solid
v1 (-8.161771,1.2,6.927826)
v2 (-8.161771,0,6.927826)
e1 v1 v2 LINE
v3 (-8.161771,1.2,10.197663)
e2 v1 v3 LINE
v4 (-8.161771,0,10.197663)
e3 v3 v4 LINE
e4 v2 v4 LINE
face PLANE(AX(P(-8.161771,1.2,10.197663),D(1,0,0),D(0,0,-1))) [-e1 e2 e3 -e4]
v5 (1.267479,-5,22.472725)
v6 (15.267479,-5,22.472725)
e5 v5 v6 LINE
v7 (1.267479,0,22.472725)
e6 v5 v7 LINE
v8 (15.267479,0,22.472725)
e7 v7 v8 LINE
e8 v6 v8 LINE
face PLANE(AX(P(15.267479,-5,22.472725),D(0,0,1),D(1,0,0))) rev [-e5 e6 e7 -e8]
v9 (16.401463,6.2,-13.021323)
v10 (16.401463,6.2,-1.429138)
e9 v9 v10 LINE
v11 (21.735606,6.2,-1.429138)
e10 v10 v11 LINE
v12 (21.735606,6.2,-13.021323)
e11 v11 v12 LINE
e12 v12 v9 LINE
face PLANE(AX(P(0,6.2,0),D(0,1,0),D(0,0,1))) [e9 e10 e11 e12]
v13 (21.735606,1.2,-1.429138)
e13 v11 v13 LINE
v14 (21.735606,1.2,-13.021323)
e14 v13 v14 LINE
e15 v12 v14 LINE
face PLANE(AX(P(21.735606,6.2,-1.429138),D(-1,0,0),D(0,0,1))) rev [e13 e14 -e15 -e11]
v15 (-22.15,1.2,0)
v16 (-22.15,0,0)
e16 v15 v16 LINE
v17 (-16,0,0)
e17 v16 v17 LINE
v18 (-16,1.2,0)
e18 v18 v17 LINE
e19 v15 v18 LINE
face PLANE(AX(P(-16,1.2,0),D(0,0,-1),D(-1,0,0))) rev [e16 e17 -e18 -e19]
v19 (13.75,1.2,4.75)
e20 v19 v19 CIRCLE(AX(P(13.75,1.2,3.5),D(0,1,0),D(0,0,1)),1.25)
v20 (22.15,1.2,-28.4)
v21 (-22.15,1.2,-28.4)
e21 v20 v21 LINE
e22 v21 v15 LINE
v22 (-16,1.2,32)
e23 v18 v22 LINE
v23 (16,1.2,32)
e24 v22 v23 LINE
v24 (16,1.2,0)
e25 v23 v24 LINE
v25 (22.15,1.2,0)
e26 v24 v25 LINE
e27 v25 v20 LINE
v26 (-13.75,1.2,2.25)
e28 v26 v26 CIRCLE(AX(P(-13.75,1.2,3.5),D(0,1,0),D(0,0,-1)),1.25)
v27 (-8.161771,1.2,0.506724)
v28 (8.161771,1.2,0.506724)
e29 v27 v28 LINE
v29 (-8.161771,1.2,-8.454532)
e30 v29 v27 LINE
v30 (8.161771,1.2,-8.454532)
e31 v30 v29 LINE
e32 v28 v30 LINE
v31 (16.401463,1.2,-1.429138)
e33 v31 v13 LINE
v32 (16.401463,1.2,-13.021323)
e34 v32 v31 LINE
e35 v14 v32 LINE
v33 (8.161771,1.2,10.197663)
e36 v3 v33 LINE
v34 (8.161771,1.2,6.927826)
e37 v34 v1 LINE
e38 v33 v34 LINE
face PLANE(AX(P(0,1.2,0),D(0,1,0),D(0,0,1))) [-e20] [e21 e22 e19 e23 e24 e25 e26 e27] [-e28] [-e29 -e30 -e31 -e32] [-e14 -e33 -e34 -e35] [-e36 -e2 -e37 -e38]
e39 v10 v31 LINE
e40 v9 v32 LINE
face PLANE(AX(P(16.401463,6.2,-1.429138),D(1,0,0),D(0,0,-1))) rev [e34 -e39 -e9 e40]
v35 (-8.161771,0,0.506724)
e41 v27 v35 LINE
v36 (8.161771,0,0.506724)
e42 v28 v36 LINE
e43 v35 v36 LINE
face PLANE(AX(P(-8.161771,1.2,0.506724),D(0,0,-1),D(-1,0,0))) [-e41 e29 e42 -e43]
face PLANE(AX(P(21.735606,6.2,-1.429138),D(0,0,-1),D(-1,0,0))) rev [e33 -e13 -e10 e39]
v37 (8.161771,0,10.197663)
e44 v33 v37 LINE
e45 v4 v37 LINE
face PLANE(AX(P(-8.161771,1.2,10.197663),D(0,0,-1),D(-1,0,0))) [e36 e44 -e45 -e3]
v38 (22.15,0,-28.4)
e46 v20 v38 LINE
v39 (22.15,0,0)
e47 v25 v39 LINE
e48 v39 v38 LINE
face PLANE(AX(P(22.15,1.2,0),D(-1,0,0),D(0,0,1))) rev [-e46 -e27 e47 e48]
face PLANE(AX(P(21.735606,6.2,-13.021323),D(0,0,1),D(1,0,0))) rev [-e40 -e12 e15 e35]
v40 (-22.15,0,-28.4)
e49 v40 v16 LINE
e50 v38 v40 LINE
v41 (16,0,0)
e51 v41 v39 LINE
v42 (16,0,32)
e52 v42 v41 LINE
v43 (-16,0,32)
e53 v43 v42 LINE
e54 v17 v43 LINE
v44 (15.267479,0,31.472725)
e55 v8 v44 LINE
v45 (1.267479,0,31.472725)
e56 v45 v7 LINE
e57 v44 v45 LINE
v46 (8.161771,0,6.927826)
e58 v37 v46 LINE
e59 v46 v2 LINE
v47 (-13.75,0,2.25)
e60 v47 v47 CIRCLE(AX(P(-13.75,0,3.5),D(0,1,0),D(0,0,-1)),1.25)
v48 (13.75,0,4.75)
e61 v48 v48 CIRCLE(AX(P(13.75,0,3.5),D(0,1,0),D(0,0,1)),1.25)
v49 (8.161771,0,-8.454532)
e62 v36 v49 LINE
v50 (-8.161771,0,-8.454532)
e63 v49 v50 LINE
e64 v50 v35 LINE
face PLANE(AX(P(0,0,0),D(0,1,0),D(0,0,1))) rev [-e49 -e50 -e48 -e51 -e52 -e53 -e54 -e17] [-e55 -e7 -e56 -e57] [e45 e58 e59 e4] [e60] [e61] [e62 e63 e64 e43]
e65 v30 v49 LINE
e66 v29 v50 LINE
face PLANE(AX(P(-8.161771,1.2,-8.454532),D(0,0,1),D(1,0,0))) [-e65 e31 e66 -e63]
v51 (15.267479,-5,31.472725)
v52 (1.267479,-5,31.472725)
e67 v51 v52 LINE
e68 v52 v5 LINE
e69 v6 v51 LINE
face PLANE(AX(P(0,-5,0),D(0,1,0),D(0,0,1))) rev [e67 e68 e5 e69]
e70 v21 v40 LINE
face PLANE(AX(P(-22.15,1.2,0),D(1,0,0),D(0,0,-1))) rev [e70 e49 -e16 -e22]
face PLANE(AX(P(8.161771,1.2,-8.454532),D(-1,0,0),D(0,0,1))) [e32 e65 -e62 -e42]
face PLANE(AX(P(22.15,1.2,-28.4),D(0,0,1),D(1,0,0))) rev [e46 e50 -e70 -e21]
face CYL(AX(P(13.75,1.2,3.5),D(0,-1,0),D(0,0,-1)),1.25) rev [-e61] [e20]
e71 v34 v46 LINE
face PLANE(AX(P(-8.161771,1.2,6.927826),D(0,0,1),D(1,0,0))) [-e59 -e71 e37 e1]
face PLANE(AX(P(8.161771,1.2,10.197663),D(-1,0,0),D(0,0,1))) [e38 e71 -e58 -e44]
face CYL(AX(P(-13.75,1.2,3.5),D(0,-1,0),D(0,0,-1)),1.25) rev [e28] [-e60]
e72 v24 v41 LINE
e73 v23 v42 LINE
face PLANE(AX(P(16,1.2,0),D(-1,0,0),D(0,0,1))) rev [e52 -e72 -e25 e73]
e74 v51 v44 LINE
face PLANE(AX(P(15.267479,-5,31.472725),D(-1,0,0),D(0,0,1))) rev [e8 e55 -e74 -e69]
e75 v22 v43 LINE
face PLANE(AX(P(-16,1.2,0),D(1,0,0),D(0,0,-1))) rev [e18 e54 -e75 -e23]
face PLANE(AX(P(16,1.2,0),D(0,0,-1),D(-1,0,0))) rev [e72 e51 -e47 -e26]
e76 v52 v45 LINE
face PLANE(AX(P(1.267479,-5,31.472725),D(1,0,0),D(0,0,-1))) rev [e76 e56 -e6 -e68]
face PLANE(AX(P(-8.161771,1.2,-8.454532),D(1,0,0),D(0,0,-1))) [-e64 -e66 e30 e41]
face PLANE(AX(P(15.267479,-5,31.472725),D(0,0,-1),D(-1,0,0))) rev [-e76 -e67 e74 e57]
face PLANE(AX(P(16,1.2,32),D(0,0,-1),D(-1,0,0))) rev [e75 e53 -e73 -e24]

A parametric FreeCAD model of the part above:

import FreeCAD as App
import Part
import Sketcher
Q = App.Units.Quantity

doc = App.newDocument("Part")
params = doc.addObject("Spreadsheet::Sheet", "Params")
for row, (alias, value) in enumerate([
    ("sketch1_diameter", "2.5 mm"),
    ("sketch1_width", "32 mm"),
    ("sketch1_width2", "44.3 mm"),
    ("sketch1_height", "28.4 mm"),
    ("pad1_length", "1.2 mm"),
    ("pad2_length", "5 mm"),
    ("sketch3_width", "14 mm"),
    ("sketch3_height", "9 mm"),
    ("pad3_length", "5 mm"),
], start=1):
    params.set(f"A{row}", alias)
    params.set(f"B{row}", "=" + value)
    params.setAlias(f"B{row}", alias)

body = doc.addObject("PartDesign::Body", "Body")

# Sketch on XZ plane
sketch1 = body.newObject("Sketcher::SketchObject", "Sketch")
sketch1.AttachmentSupport = (doc.getObject("XZ_Plane"), [""])
sketch1.MapMode = "FlatFace"
sketch1.addGeometry([
    Part.LineSegment(App.Vector(16, 32, 0), App.Vector(16, 0, 0)),  # 0
    Part.LineSegment(App.Vector(16, 0, 0), App.Vector(22.15, 0, 0)),  # 1
    Part.LineSegment(App.Vector(22.15, 0, 0), App.Vector(22.15, -28.4, 0)),  # 2
    Part.LineSegment(App.Vector(22.15, -28.4, 0), App.Vector(-22.15, -28.4, 0)),  # 3
    Part.LineSegment(App.Vector(-22.15, -28.4, 0), App.Vector(-22.15, 0, 0)),  # 4
    Part.LineSegment(App.Vector(-22.15, 0, 0), App.Vector(-16, 0, 0)),  # 5
    Part.LineSegment(App.Vector(-16, 0, 0), App.Vector(-16, 32, 0)),  # 6
    Part.LineSegment(App.Vector(-16, 32, 0), App.Vector(16, 32, 0)),  # 7
    Part.Circle(App.Vector(13.75, 3.5, 0), App.Vector(0, 0, 1), 1.25),  # 8
    Part.LineSegment(App.Vector(-8.161771, 10.197663, 0), App.Vector(-8.161771, 6.927826, 0)),  # 9
    Part.LineSegment(App.Vector(-8.161771, 6.927826, 0), App.Vector(8.161771, 6.927826, 0)),  # 10
    Part.LineSegment(App.Vector(8.161771, 6.927826, 0), App.Vector(8.161771, 10.197663, 0)),  # 11
    Part.LineSegment(App.Vector(8.161771, 10.197663, 0), App.Vector(-8.161771, 10.197663, 0)),  # 12
    Part.Circle(App.Vector(-13.75, 3.5, 0), App.Vector(0, 0, 1), 1.25),  # 13
    Part.LineSegment(App.Vector(-8.161771, 0.506724, 0), App.Vector(-8.161771, -8.454532, 0)),  # 14
    Part.LineSegment(App.Vector(-8.161771, -8.454532, 0), App.Vector(8.161771, -8.454532, 0)),  # 15
    Part.LineSegment(App.Vector(8.161771, -8.454532, 0), App.Vector(8.161771, 0.506724, 0)),  # 16
    Part.LineSegment(App.Vector(8.161771, 0.506724, 0), App.Vector(-8.161771, 0.506724, 0)),  # 17
], False)
sketch1.addConstraint([
    Sketcher.Constraint("Coincident", 0, 2, 1, 1),
    Sketcher.Constraint("Coincident", 1, 2, 2, 1),
    Sketcher.Constraint("Coincident", 2, 2, 3, 1),
    Sketcher.Constraint("Coincident", 3, 2, 4, 1),
    Sketcher.Constraint("Coincident", 4, 2, 5, 1),
    Sketcher.Constraint("Coincident", 5, 2, 6, 1),
    Sketcher.Constraint("Coincident", 6, 2, 7, 1),
    Sketcher.Constraint("Coincident", 7, 2, 0, 1),
    Sketcher.Constraint("Coincident", 9, 2, 10, 1),
    Sketcher.Constraint("Coincident", 10, 2, 11, 1),
    Sketcher.Constraint("Coincident", 11, 2, 12, 1),
    Sketcher.Constraint("Coincident", 12, 2, 9, 1),
    Sketcher.Constraint("Coincident", 14, 2, 15, 1),
    Sketcher.Constraint("Coincident", 15, 2, 16, 1),
    Sketcher.Constraint("Coincident", 16, 2, 17, 1),
    Sketcher.Constraint("Coincident", 17, 2, 14, 1),
    Sketcher.Constraint("Vertical", 0),
    Sketcher.Constraint("Horizontal", 1),
    Sketcher.Constraint("Vertical", 2),
    Sketcher.Constraint("Horizontal", 3),
    Sketcher.Constraint("Vertical", 4),
    Sketcher.Constraint("Horizontal", 5),
    Sketcher.Constraint("Vertical", 6),
    Sketcher.Constraint("Horizontal", 7),
    Sketcher.Constraint("Vertical", 9),
    Sketcher.Constraint("Horizontal", 10),
    Sketcher.Constraint("Vertical", 11),
    Sketcher.Constraint("Horizontal", 12),
    Sketcher.Constraint("Vertical", 14),
    Sketcher.Constraint("Horizontal", 15),
    Sketcher.Constraint("Vertical", 16),
    Sketcher.Constraint("Horizontal", 17),
    Sketcher.Constraint("Equal", 8, 13),
    Sketcher.Constraint("Symmetric", 1, 2, 4, 2, -1, 1),
    Sketcher.Constraint("Symmetric", 8, 3, 13, 3, -2),
    Sketcher.Constraint("Symmetric", 0, 2, 5, 2, -2),
    Sketcher.Constraint("Vertical", 12, 2, 14, 2),
    Sketcher.Constraint("Vertical", 11, 2, 15, 2),
    Sketcher.Constraint("Equal", 7, 0),
    Sketcher.Constraint("Diameter", 8, Q("2.5 mm")),
    Sketcher.Constraint("DistanceX", 7, 1, 7, 2, Q("32 mm")),
    Sketcher.Constraint("DistanceX", 3, 2, 3, 1, Q("44.3 mm")),
    Sketcher.Constraint("DistanceY", 2, 2, 2, 1, Q("28.4 mm")),
    Sketcher.Constraint("DistanceY", -1, 1, 8, 3, Q("3.5 mm")),
    Sketcher.Constraint("DistanceX", 13, 3, 8, 3, Q("27.5 mm")),
    Sketcher.Constraint("DistanceX", 10, 1, 10, 2, Q("16.323542 mm")),
    Sketcher.Constraint("DistanceY", 16, 2, 10, 2, Q("6.421102 mm")),
    Sketcher.Constraint("DistanceY", 9, 2, 9, 1, Q("3.269837 mm")),
    Sketcher.Constraint("DistanceY", 14, 2, 14, 1, Q("8.961256 mm")),
    Sketcher.Constraint("DistanceX", 9, 2, -1, 1, Q("8.161771 mm")),
    Sketcher.Constraint("DistanceY", 14, 2, -1, 1, Q("8.454532 mm")),
])
sketch1.setExpression("Constraints[39]", "Params.sketch1_diameter")
sketch1.setExpression("Constraints[40]", "Params.sketch1_width")
sketch1.setExpression("Constraints[41]", "Params.sketch1_width2")
sketch1.setExpression("Constraints[42]", "Params.sketch1_height")
pad1 = body.newObject("PartDesign::Pad", "Pad")
pad1.Profile = sketch1
pad1.setExpression("Length", "Params.pad1_length")
pad1.Reversed = True

# Sketch on XZ plane
sketch2 = body.newObject("Sketcher::SketchObject", "Sketch001")
sketch2.AttachmentSupport = (doc.getObject("XZ_Plane"), [""])
sketch2.MapMode = "FlatFace"
sketch2.AttachmentOffset = App.Placement(App.Vector(0, 0, -1.2), App.Rotation())
sketch2.addGeometry([
    Part.LineSegment(App.Vector(16.401463, -13.021323, 0), App.Vector(16.401463, -1.429138, 0)),
    Part.LineSegment(App.Vector(16.401463, -1.429138, 0), App.Vector(21.735606, -1.429138, 0)),
    Part.LineSegment(App.Vector(21.735606, -1.429138, 0), App.Vector(21.735606, -13.021323, 0)),
    Part.LineSegment(App.Vector(21.735606, -13.021323, 0), App.Vector(16.401463, -13.021323, 0)),
], False)
sketch2.addConstraint([
    Sketcher.Constraint("Coincident", 0, 2, 1, 1),
    Sketcher.Constraint("Coincident", 1, 2, 2, 1),
    Sketcher.Constraint("Coincident", 2, 2, 3, 1),
    Sketcher.Constraint("Coincident", 3, 2, 0, 1),
    Sketcher.Constraint("Vertical", 0),
    Sketcher.Constraint("Horizontal", 1),
    Sketcher.Constraint("Vertical", 2),
    Sketcher.Constraint("Horizontal", 3),
    Sketcher.Constraint("DistanceX", 1, 1, 1, 2, Q("5.334143 mm")),
    Sketcher.Constraint("DistanceY", 0, 1, 0, 2, Q("11.592185 mm")),
    Sketcher.Constraint("DistanceX", -1, 1, 0, 2, Q("16.401463 mm")),
    Sketcher.Constraint("DistanceY", 0, 2, -1, 1, Q("1.429138 mm")),
])
pad2 = body.newObject("PartDesign::Pad", "Pad001")
pad2.Profile = sketch2
pad2.setExpression("Length", "Params.pad2_length")
pad2.Reversed = True

# Sketch on XZ plane
sketch3 = body.newObject("Sketcher::SketchObject", "Sketch002")
sketch3.AttachmentSupport = (doc.getObject("XZ_Plane"), [""])
sketch3.MapMode = "FlatFace"
sketch3.addGeometry([
    Part.LineSegment(App.Vector(1.267479, 31.472725, 0), App.Vector(1.267479, 22.472725, 0)),
    Part.LineSegment(App.Vector(1.267479, 22.472725, 0), App.Vector(15.267479, 22.472725, 0)),
    Part.LineSegment(App.Vector(15.267479, 22.472725, 0), App.Vector(15.267479, 31.472725, 0)),
    Part.LineSegment(App.Vector(15.267479, 31.472725, 0), App.Vector(1.267479, 31.472725, 0)),
], False)
sketch3.addConstraint([
    Sketcher.Constraint("Coincident", 0, 2, 1, 1),
    Sketcher.Constraint("Coincident", 1, 2, 2, 1),
    Sketcher.Constraint("Coincident", 2, 2, 3, 1),
    Sketcher.Constraint("Coincident", 3, 2, 0, 1),
    Sketcher.Constraint("Vertical", 0),
    Sketcher.Constraint("Horizontal", 1),
    Sketcher.Constraint("Vertical", 2),
    Sketcher.Constraint("Horizontal", 3),
    Sketcher.Constraint("DistanceX", 1, 1, 1, 2, Q("14 mm")),
    Sketcher.Constraint("DistanceY", 0, 2, 0, 1, Q("9 mm")),
    Sketcher.Constraint("DistanceX", -1, 1, 0, 2, Q("1.267479 mm")),
    Sketcher.Constraint("DistanceY", -1, 1, 0, 2, Q("22.472725 mm")),
])
sketch3.setExpression("Constraints[8]", "Params.sketch3_width")
sketch3.setExpression("Constraints[9]", "Params.sketch3_height")
pad3 = body.newObject("PartDesign::Pad", "Pad002")
pad3.Profile = sketch3
pad3.setExpression("Length", "Params.pad3_length")

doc.recompute()
